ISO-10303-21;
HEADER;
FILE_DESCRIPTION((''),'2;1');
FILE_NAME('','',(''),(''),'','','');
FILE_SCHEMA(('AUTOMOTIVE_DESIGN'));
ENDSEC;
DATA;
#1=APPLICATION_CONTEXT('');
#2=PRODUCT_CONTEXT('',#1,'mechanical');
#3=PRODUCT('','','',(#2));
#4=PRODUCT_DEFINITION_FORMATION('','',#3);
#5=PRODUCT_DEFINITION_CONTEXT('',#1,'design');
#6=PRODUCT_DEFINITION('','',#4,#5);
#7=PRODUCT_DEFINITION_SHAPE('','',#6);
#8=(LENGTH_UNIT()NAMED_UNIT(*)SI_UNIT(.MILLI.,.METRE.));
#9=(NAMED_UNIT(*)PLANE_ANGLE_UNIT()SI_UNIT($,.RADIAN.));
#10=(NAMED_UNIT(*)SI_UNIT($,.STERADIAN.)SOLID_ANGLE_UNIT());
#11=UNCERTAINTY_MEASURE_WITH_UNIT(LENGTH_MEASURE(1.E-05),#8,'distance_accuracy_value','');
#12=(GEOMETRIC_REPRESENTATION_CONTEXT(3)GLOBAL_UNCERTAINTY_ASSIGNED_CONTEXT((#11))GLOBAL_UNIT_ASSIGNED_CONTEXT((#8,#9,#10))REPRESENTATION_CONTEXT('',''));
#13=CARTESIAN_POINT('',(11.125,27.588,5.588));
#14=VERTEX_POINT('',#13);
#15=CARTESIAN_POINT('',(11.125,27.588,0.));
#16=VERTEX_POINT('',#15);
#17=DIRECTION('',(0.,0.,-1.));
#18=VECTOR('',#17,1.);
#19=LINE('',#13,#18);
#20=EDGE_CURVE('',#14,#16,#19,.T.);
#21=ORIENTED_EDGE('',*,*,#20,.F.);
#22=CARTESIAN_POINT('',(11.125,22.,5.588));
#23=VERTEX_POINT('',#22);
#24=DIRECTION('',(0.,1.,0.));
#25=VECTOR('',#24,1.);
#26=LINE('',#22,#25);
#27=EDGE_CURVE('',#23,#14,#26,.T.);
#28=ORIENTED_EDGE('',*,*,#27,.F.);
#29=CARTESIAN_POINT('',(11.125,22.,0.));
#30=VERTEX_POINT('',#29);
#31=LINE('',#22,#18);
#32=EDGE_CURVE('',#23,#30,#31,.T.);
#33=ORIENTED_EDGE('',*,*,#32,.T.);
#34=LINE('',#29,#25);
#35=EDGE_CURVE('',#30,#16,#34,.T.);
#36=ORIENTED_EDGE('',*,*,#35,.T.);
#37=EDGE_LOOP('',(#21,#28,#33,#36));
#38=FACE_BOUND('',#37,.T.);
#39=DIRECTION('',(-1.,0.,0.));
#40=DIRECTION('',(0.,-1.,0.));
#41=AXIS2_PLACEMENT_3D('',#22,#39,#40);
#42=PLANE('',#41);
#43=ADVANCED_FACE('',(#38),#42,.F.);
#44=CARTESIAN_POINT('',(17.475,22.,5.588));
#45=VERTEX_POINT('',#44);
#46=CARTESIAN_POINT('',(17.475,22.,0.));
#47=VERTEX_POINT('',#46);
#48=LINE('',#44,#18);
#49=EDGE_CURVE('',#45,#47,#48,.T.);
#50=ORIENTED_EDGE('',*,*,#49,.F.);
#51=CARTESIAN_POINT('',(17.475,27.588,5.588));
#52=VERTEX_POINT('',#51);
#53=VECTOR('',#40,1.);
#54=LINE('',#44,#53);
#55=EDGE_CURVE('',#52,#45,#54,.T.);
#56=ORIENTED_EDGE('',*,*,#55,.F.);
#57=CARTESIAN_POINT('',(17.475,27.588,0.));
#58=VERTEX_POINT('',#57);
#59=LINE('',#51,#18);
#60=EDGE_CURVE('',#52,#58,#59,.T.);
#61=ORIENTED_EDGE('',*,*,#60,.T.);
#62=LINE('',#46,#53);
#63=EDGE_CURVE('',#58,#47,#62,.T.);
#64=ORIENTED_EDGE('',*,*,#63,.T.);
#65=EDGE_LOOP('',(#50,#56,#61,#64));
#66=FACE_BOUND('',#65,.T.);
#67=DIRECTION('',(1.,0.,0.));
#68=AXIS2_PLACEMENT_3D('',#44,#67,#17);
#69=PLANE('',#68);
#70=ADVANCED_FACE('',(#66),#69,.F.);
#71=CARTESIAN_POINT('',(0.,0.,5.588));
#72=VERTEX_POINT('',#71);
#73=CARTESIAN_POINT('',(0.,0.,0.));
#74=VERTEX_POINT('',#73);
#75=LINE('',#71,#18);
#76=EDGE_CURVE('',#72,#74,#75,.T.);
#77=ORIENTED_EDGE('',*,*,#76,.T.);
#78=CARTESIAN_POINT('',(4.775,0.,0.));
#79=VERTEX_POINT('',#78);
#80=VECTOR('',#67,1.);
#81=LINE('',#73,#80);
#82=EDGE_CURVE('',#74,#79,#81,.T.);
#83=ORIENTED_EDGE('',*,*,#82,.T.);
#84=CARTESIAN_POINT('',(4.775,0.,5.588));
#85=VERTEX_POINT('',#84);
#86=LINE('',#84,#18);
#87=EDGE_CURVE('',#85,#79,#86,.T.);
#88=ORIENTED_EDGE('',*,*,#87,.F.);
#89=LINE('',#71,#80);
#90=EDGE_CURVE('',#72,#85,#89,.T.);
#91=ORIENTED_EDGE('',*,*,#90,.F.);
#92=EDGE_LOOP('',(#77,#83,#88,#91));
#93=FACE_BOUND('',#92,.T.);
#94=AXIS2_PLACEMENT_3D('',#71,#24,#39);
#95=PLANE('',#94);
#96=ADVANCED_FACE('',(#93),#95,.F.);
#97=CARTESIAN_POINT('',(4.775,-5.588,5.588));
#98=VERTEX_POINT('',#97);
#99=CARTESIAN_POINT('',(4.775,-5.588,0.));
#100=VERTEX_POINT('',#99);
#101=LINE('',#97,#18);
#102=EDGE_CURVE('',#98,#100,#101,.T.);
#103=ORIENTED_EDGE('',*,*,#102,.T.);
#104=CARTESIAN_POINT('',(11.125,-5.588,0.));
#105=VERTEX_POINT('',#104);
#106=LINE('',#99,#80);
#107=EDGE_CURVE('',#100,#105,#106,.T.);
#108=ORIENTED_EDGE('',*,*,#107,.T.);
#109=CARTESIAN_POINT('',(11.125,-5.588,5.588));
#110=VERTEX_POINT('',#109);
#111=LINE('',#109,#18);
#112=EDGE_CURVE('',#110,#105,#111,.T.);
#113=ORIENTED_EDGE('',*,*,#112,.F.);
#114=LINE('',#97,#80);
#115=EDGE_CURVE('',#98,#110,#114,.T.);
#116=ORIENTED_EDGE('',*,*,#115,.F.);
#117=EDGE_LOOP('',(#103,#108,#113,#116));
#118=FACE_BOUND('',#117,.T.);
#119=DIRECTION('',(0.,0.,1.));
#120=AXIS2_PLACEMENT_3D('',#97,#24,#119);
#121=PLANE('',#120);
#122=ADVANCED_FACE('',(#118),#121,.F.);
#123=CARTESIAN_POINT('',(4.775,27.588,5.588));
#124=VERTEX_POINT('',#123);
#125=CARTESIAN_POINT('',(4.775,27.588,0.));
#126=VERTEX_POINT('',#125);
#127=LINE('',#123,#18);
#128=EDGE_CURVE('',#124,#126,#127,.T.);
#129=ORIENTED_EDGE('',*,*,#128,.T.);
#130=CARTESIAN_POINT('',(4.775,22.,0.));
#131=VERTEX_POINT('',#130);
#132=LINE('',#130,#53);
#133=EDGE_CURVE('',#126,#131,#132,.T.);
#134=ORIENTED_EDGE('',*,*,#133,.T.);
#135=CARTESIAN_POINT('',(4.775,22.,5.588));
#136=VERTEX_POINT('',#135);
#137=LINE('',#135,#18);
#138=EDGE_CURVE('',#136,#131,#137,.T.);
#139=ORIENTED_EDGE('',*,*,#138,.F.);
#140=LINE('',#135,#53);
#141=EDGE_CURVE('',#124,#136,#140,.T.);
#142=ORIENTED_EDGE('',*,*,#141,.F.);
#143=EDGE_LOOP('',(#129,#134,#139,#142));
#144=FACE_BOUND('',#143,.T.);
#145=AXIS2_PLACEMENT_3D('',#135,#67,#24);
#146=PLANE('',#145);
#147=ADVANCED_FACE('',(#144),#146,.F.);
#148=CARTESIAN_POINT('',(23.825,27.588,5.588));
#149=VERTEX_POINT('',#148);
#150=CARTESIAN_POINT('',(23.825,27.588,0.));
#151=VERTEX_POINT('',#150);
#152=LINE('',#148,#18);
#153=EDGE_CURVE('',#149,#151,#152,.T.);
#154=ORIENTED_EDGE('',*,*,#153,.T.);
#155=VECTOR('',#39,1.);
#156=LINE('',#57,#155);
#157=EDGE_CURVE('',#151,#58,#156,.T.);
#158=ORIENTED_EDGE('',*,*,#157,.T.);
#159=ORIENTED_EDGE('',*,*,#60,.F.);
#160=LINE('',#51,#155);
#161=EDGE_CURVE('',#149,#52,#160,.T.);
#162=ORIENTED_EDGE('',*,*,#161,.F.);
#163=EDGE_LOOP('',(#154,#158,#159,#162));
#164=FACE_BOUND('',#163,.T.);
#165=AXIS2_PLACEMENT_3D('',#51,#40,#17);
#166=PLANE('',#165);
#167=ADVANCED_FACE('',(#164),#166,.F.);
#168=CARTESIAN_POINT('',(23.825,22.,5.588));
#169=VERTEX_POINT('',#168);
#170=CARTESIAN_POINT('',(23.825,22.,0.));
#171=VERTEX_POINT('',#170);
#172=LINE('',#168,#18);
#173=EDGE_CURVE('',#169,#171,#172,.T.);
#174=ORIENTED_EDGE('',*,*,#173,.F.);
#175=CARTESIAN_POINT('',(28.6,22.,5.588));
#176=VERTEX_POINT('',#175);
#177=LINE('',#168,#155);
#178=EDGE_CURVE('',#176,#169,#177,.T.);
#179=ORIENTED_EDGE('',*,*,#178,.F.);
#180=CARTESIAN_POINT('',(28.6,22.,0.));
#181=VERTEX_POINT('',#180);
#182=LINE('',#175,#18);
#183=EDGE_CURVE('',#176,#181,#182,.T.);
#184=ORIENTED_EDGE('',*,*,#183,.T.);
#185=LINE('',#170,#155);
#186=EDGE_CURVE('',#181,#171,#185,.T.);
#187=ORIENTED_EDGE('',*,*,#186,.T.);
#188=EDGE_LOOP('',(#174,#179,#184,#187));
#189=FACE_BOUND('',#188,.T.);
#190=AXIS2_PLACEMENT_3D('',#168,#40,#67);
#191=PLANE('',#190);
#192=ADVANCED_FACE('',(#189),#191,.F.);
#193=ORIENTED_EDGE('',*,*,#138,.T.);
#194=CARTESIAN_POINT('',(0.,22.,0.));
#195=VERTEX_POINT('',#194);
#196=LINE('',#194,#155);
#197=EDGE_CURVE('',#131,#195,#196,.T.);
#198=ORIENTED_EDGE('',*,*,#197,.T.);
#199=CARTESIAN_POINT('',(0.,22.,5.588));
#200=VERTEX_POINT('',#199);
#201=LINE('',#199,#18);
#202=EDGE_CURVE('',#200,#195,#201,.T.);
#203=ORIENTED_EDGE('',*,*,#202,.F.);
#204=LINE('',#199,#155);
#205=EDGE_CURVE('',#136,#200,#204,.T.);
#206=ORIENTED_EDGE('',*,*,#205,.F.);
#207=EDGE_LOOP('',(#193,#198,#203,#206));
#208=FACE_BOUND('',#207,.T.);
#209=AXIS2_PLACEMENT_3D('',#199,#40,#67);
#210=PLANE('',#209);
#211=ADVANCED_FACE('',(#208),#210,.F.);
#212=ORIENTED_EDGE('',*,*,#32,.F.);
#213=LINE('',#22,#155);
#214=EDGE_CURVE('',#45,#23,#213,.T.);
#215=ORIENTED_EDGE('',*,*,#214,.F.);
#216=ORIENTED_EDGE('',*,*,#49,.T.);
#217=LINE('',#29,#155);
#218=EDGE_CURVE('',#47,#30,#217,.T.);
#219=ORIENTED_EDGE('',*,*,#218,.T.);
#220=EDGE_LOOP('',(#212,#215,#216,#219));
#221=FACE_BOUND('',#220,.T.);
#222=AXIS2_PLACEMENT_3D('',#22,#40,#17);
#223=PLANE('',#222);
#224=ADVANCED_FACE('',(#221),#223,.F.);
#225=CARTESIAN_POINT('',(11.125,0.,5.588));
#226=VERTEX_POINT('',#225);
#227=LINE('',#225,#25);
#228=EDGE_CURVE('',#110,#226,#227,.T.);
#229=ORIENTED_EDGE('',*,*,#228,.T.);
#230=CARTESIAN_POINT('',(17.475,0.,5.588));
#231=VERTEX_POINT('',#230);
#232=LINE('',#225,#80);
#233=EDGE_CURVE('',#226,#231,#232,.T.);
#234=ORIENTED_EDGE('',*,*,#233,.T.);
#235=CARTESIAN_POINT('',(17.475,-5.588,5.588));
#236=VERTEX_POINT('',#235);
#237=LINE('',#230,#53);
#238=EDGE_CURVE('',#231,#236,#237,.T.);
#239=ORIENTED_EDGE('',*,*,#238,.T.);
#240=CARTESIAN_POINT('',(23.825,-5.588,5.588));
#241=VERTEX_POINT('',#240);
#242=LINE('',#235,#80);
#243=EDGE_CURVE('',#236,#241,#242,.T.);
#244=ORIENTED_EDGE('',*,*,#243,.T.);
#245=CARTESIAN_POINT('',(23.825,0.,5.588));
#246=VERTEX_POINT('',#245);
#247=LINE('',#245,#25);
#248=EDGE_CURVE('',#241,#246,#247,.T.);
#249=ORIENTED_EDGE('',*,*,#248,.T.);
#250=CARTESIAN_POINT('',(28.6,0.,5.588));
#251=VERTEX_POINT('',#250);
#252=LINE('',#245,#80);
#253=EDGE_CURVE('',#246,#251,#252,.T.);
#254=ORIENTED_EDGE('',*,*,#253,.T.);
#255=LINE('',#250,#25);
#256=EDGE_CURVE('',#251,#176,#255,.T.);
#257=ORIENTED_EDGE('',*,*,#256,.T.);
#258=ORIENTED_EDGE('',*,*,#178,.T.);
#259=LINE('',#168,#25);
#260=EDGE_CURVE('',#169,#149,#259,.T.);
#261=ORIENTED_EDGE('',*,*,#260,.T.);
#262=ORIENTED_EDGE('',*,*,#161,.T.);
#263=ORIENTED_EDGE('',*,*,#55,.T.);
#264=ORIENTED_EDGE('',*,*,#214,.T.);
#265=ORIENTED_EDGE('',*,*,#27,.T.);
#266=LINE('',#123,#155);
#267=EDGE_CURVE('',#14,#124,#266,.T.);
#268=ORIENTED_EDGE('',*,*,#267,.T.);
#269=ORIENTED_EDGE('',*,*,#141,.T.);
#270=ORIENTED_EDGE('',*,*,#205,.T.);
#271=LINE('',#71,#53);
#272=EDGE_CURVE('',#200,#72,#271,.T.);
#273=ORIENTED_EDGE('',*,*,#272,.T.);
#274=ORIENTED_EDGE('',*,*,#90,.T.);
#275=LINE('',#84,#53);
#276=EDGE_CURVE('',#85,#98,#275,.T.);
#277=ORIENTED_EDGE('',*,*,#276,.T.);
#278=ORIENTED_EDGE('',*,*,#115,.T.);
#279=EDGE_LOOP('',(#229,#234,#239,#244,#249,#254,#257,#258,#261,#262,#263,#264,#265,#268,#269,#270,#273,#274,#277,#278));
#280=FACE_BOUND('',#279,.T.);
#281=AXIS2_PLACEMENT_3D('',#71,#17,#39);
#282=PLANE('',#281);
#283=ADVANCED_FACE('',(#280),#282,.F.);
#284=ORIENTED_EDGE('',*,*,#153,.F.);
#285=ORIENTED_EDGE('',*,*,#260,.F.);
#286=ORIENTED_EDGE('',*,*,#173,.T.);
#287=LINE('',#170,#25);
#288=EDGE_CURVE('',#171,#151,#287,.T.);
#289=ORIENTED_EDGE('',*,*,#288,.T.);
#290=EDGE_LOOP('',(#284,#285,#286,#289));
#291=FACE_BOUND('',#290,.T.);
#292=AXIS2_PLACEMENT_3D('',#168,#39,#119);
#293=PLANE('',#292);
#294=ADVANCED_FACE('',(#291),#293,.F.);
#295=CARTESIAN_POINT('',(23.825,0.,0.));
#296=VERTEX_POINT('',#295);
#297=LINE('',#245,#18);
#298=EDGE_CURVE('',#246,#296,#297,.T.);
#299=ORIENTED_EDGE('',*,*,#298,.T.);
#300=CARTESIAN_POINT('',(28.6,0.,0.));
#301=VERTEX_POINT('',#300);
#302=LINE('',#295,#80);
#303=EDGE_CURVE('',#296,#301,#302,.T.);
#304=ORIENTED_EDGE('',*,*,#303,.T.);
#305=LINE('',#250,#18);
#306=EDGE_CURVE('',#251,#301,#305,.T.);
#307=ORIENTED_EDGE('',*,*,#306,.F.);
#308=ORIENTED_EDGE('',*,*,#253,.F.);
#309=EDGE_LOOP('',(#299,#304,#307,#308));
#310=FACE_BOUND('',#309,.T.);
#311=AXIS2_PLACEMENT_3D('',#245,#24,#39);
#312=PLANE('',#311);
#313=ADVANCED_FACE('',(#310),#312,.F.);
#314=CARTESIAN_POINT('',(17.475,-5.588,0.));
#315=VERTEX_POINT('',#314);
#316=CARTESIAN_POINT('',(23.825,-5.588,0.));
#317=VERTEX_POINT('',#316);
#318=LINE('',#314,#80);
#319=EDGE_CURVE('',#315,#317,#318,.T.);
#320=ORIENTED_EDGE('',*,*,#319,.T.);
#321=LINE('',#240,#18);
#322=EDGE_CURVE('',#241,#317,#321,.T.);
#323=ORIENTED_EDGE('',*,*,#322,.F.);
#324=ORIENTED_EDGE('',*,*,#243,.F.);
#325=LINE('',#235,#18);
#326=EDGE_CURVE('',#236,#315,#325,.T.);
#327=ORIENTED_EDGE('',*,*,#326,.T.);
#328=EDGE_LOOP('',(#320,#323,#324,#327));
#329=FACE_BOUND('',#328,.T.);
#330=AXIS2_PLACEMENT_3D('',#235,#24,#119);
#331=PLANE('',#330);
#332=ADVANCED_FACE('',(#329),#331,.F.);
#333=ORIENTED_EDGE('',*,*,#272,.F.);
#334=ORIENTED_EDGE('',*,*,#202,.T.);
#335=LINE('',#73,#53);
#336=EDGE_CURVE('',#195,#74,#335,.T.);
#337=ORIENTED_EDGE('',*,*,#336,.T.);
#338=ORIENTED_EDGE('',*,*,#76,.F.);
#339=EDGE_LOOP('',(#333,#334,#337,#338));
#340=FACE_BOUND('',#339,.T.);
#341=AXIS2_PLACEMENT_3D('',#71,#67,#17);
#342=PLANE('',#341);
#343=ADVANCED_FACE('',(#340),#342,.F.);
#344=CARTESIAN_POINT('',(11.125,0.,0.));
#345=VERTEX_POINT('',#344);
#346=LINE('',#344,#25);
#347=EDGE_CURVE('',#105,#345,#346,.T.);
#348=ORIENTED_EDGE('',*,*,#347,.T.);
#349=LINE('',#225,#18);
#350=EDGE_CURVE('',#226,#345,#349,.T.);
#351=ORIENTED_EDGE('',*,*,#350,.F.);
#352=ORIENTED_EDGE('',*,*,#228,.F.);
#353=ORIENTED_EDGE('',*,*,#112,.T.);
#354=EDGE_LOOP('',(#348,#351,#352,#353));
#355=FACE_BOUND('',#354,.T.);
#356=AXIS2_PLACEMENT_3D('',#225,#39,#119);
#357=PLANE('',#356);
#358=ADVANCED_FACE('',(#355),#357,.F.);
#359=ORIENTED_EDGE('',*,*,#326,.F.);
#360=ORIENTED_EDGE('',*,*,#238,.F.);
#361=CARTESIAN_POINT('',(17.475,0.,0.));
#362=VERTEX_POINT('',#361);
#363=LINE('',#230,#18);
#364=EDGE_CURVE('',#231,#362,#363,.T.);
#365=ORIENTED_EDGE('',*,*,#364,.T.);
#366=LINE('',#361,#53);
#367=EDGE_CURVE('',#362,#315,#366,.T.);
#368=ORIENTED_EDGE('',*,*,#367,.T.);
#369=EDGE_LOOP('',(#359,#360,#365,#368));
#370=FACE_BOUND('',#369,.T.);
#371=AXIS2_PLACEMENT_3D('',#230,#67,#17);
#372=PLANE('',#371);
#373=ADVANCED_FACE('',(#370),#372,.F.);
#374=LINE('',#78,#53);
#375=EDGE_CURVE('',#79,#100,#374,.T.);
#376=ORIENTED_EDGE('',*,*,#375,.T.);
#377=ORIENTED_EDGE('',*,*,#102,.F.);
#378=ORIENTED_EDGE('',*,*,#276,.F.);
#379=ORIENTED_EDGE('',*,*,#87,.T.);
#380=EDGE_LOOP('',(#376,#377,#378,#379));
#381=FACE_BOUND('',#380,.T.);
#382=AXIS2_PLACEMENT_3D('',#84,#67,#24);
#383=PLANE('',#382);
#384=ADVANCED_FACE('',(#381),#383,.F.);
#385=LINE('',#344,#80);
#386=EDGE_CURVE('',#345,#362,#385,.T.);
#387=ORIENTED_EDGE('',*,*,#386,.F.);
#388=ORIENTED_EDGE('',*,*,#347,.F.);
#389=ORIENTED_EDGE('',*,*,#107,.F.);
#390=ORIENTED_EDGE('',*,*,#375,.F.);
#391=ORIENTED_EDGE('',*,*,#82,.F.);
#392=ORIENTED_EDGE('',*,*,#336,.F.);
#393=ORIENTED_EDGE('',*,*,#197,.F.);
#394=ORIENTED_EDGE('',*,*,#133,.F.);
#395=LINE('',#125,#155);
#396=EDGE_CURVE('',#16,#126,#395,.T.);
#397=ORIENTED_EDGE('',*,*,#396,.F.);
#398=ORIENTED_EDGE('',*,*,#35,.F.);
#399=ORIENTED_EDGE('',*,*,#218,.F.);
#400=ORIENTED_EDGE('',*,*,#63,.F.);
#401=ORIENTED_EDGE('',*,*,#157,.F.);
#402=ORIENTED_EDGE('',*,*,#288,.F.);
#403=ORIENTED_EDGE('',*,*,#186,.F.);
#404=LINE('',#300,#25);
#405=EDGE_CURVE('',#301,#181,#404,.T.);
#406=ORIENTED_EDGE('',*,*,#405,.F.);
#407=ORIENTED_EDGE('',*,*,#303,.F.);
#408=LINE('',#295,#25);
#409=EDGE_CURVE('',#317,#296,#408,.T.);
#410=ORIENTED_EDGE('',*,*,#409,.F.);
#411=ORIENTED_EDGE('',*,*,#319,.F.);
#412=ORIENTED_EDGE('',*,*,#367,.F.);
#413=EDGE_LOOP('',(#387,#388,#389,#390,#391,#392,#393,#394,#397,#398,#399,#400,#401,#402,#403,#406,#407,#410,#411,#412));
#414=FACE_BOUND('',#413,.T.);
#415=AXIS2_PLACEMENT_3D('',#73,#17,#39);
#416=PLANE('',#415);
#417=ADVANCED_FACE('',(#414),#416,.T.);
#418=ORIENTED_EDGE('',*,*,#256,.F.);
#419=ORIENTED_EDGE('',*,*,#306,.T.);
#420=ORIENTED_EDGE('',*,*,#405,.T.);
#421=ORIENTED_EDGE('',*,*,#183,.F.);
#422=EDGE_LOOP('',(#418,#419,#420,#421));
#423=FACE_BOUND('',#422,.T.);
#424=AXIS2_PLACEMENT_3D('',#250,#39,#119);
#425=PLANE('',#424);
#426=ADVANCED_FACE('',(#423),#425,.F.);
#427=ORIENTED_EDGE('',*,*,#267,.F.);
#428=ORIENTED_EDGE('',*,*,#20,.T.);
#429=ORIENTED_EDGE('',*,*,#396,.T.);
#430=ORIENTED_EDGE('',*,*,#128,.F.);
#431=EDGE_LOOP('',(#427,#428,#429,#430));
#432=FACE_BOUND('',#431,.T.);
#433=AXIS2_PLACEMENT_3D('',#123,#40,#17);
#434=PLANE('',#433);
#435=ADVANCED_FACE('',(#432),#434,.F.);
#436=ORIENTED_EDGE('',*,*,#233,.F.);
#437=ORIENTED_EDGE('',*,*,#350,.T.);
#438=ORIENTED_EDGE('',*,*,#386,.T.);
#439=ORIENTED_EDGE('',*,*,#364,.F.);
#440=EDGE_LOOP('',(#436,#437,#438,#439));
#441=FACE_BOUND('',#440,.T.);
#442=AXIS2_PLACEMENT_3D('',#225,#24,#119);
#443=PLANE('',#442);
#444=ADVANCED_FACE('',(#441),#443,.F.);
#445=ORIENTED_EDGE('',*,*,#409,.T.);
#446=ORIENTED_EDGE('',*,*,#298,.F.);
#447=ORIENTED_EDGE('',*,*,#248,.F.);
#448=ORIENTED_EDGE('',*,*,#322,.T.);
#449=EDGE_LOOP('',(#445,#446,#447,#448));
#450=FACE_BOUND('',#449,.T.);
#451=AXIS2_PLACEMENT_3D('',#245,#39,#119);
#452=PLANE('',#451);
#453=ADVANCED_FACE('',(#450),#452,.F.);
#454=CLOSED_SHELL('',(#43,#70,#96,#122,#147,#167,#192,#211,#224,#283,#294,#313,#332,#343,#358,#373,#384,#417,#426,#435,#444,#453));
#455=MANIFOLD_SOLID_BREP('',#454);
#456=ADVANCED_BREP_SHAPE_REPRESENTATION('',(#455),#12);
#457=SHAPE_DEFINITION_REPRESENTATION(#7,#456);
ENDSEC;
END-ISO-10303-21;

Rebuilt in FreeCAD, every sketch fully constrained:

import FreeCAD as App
import Part
import Sketcher

V = App.Vector
Q = App.Units.Quantity

doc = App.newDocument("Part")
body = doc.addObject("PartDesign::Body", "Body")

# Sketch on XY plane
sketch1 = body.newObject("Sketcher::SketchObject", "Sketch")
sketch1.AttachmentSupport = (doc.getObject("XY_Plane"), [""])
sketch1.MapMode = "FlatFace"
sketch1.addGeometry(Part.LineSegment(V(0, 0, 0), V(4.8, 0, 0)), False)
sketch1.addGeometry(Part.LineSegment(V(4.8, 0, 0), V(4.8, -5.6, 0)), False)
sketch1.addGeometry(Part.LineSegment(V(4.8, -5.6, 0), V(11.1, -5.6, 0)), False)
sketch1.addGeometry(Part.LineSegment(V(11.1, -5.6, 0), V(11.1, 0, 0)), False)
sketch1.addGeometry(Part.LineSegment(V(11.1, 0, 0), V(17.5, 0, 0)), False)
sketch1.addGeometry(Part.LineSegment(V(17.5, 0, 0), V(17.5, -5.6, 0)), False)
sketch1.addGeometry(Part.LineSegment(V(17.5, -5.6, 0), V(23.8, -5.6, 0)), False)
sketch1.addGeometry(Part.LineSegment(V(23.8, -5.6, 0), V(23.8, 0, 0)), False)
sketch1.addGeometry(Part.LineSegment(V(23.8, 0, 0), V(28.6, 0, 0)), False)
sketch1.addGeometry(Part.LineSegment(V(28.6, 0, 0), V(28.6, 22, 0)), False)
sketch1.addGeometry(Part.LineSegment(V(28.6, 22, 0), V(23.8, 22, 0)), False)
sketch1.addGeometry(Part.LineSegment(V(23.8, 22, 0), V(23.8, 27.6, 0)), False)
sketch1.addGeometry(Part.LineSegment(V(23.8, 27.6, 0), V(17.5, 27.6, 0)), False)
sketch1.addGeometry(Part.LineSegment(V(17.5, 27.6, 0), V(17.5, 22, 0)), False)
sketch1.addGeometry(Part.LineSegment(V(17.5, 22, 0), V(11.1, 22, 0)), False)
sketch1.addGeometry(Part.LineSegment(V(11.1, 22, 0), V(11.1, 27.6, 0)), False)
sketch1.addGeometry(Part.LineSegment(V(11.1, 27.6, 0), V(4.8, 27.6, 0)), False)
sketch1.addGeometry(Part.LineSegment(V(4.8, 27.6, 0), V(4.8, 22, 0)), False)
sketch1.addGeometry(Part.LineSegment(V(4.8, 22, 0), V(0, 22, 0)), False)
sketch1.addGeometry(Part.LineSegment(V(0, 22, 0), V(0, 0, 0)), False)
sketch1.addConstraint(Sketcher.Constraint("Coincident", 0, 2, 1, 1))
sketch1.addConstraint(Sketcher.Constraint("Coincident", 1, 2, 2, 1))
sketch1.addConstraint(Sketcher.Constraint("Coincident", 2, 2, 3, 1))
sketch1.addConstraint(Sketcher.Constraint("Coincident", 3, 2, 4, 1))
sketch1.addConstraint(Sketcher.Constraint("Coincident", 4, 2, 5, 1))
sketch1.addConstraint(Sketcher.Constraint("Coincident", 5, 2, 6, 1))
sketch1.addConstraint(Sketcher.Constraint("Coincident", 6, 2, 7, 1))
sketch1.addConstraint(Sketcher.Constraint("Coincident", 7, 2, 8, 1))
sketch1.addConstraint(Sketcher.Constraint("Coincident", 8, 2, 9, 1))
sketch1.addConstraint(Sketcher.Constraint("Coincident", 9, 2, 10, 1))
sketch1.addConstraint(Sketcher.Constraint("Coincident", 10, 2, 11, 1))
sketch1.addConstraint(Sketcher.Constraint("Coincident", 11, 2, 12, 1))
sketch1.addConstraint(Sketcher.Constraint("Coincident", 12, 2, 13, 1))
sketch1.addConstraint(Sketcher.Constraint("Coincident", 13, 2, 14, 1))
sketch1.addConstraint(Sketcher.Constraint("Coincident", 14, 2, 15, 1))
sketch1.addConstraint(Sketcher.Constraint("Coincident", 15, 2, 16, 1))
sketch1.addConstraint(Sketcher.Constraint("Coincident", 16, 2, 17, 1))
sketch1.addConstraint(Sketcher.Constraint("Coincident", 17, 2, 18, 1))
sketch1.addConstraint(Sketcher.Constraint("Coincident", 18, 2, 19, 1))
sketch1.addConstraint(Sketcher.Constraint("Coincident", 19, 2, 0, 1))
sketch1.addConstraint(Sketcher.Constraint("Horizontal", 0))
sketch1.addConstraint(Sketcher.Constraint("Vertical", 1))
sketch1.addConstraint(Sketcher.Constraint("Horizontal", 2))
sketch1.addConstraint(Sketcher.Constraint("Vertical", 3))
sketch1.addConstraint(Sketcher.Constraint("Horizontal", 4))
sketch1.addConstraint(Sketcher.Constraint("Vertical", 5))
sketch1.addConstraint(Sketcher.Constraint("Horizontal", 6))
sketch1.addConstraint(Sketcher.Constraint("Vertical", 7))
sketch1.addConstraint(Sketcher.Constraint("Horizontal", 8))
sketch1.addConstraint(Sketcher.Constraint("Vertical", 9))
sketch1.addConstraint(Sketcher.Constraint("Horizontal", 10))
sketch1.addConstraint(Sketcher.Constraint("Vertical", 11))
sketch1.addConstraint(Sketcher.Constraint("Horizontal", 12))
sketch1.addConstraint(Sketcher.Constraint("Vertical", 13))
sketch1.addConstraint(Sketcher.Constraint("Horizontal", 14))
sketch1.addConstraint(Sketcher.Constraint("Vertical", 15))
sketch1.addConstraint(Sketcher.Constraint("Horizontal", 16))
sketch1.addConstraint(Sketcher.Constraint("Vertical", 17))
sketch1.addConstraint(Sketcher.Constraint("Horizontal", 18))
sketch1.addConstraint(Sketcher.Constraint("Vertical", 19))
sketch1.addConstraint(Sketcher.Constraint("Coincident", 19, 2, -1, 1))
sketch1.addConstraint(Sketcher.Constraint("PointOnObject", 3, 2, -1))
sketch1.addConstraint(Sketcher.Constraint("PointOnObject", 7, 2, -1))
sketch1.addConstraint(Sketcher.Constraint("Horizontal", 2, 2, 5, 2))
sketch1.addConstraint(Sketcher.Constraint("Horizontal", 10, 2, 13, 2))
sketch1.addConstraint(Sketcher.Constraint("Horizontal", 12, 2, 15, 2))
sketch1.addConstraint(Sketcher.Constraint("Horizontal", 14, 2, 17, 2))
sketch1.addConstraint(Sketcher.Constraint("Vertical", 7, 2, 10, 2))
sketch1.addConstraint(Sketcher.Constraint("Vertical", 5, 2, 12, 2))
sketch1.addConstraint(Sketcher.Constraint("Vertical", 3, 2, 14, 2))
sketch1.addConstraint(Sketcher.Constraint("Vertical", 1, 2, 16, 2))
sketch1.addConstraint(Sketcher.Constraint("Equal", 2, 4))
sketch1.addConstraint(Sketcher.Constraint("Equal", 4, 6))
sketch1.addConstraint(Sketcher.Constraint("Equal", 0, 8))
sketch1.addConstraint(Sketcher.Constraint("Equal", 7, 11))
sketch1.addConstraint(Sketcher.Constraint("DistanceX", 2, 1, 2, 2, Q("0.25 in")))
sketch1.addConstraint(Sketcher.Constraint("DistanceY", 1, 2, 1, 1, Q("0.22 in")))
sketch1.addConstraint(Sketcher.Constraint("DistanceX", 0, 1, 0, 2, 4.775))
sketch1.addConstraint(Sketcher.Constraint("DistanceY", 9, 1, 9, 2, 22.0))
pad1 = body.newObject("PartDesign::Pad", "Pad")
pad1.Profile = sketch1
pad1.Length = Q("0.22 in")

doc.recompute()
